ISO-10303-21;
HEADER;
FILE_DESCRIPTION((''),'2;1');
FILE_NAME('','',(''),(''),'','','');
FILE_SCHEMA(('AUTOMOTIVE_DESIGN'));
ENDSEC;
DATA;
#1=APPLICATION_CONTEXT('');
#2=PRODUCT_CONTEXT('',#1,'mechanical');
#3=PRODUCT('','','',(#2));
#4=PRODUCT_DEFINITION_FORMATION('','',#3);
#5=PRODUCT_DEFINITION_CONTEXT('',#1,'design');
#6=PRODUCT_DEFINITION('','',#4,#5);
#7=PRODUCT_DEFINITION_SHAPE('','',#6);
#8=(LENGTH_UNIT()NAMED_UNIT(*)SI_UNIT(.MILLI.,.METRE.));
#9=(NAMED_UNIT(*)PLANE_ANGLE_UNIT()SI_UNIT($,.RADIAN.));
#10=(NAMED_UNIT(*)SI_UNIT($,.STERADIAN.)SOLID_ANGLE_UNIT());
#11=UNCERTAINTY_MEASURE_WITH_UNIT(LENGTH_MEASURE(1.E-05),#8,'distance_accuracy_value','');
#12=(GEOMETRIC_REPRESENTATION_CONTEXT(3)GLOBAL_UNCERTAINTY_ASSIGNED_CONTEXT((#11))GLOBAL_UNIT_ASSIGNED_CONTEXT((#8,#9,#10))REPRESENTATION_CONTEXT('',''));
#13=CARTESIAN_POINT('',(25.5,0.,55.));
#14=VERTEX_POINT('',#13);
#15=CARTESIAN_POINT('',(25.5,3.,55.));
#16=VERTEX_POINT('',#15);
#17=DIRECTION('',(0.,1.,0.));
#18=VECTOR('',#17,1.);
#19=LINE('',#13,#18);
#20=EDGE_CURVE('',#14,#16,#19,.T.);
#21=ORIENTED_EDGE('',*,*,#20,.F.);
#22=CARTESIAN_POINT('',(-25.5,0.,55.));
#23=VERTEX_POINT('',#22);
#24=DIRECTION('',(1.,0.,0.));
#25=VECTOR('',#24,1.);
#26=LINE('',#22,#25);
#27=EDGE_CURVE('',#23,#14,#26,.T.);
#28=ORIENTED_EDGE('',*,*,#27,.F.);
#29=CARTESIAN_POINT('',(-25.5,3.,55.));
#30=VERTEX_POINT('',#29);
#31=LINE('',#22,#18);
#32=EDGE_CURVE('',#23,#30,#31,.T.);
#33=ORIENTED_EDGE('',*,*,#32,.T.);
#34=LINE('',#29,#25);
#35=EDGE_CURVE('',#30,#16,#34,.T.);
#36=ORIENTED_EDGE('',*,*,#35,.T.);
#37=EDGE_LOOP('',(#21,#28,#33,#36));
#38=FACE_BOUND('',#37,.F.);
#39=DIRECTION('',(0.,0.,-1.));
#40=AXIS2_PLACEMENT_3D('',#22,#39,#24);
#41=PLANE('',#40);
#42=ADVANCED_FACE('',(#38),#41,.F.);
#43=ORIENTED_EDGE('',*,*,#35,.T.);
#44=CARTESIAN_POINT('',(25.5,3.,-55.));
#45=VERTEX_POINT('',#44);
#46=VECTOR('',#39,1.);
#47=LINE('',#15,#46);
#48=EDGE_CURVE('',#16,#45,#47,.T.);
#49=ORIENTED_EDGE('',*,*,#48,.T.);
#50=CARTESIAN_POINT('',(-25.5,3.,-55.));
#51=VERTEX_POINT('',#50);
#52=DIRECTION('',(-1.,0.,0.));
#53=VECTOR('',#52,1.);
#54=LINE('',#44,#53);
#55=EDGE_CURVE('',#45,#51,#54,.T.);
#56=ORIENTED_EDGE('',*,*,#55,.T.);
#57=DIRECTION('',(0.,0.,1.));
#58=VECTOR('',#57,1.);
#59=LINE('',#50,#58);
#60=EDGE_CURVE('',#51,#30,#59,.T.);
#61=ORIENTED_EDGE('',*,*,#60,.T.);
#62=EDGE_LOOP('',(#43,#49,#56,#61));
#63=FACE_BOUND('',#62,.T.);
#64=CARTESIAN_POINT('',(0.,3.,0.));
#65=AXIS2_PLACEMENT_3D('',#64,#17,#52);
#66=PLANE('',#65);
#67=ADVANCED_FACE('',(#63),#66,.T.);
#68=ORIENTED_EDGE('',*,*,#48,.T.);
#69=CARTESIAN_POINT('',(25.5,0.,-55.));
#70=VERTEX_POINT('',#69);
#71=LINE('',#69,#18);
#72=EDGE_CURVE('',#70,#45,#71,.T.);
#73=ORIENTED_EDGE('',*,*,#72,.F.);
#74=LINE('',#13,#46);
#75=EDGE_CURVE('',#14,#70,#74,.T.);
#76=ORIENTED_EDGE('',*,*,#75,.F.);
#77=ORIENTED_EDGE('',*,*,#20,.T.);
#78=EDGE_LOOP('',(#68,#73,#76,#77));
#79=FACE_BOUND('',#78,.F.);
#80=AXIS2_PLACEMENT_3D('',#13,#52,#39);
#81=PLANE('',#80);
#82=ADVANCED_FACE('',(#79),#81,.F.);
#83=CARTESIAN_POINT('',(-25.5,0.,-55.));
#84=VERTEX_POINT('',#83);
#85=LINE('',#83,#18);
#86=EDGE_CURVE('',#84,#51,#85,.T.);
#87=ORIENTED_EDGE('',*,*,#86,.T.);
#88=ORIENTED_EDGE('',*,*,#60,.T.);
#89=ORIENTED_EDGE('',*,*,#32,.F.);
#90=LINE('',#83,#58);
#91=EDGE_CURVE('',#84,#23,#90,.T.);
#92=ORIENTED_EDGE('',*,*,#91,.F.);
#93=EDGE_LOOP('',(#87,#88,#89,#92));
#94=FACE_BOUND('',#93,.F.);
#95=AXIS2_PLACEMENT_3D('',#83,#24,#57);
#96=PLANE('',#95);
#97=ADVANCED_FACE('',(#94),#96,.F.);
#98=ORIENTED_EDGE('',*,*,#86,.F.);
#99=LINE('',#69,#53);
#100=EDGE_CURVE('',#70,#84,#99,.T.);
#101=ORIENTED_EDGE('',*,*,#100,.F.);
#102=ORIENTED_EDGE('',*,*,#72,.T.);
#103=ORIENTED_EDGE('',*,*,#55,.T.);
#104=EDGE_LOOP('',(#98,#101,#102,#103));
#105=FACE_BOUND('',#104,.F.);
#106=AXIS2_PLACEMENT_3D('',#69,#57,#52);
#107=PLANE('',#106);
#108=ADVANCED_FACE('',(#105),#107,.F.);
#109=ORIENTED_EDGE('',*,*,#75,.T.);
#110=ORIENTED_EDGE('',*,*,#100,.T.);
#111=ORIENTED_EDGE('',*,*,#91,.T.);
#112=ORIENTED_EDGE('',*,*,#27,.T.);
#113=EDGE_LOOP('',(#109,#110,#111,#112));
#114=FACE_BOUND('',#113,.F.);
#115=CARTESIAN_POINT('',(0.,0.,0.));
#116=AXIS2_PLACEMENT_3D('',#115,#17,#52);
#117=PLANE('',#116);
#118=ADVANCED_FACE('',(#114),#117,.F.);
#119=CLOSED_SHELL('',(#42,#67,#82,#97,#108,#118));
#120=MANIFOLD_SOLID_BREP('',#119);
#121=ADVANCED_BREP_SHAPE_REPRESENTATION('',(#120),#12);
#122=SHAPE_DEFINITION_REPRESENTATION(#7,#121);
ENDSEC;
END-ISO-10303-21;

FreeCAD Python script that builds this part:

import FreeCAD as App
import Part
import Sketcher
Q = App.Units.Quantity


def add_polygon(sketch, points):
    """Adds a closed chain of lines whose ends are joined by coincident constraints."""
    first, n = sketch.GeometryCount, len(points)
    for a, b in zip(points, points[1:] + points[:1]):
        sketch.addGeometry(Part.LineSegment(App.Vector(*a, 0), App.Vector(*b, 0)), False)
    for i in range(n):
        sketch.addConstraint(Sketcher.Constraint("Coincident", first + i, 2, first + (i + 1) % n, 1))

doc = App.newDocument("Part")
params = doc.addObject("Spreadsheet::Sheet", "Params")
for row, (alias, value) in enumerate([
    ("sketch1_width", "51 mm"),
    ("sketch1_height", "110 mm"),
    ("pad1_length", "3 mm"),
], start=1):
    params.set(f"A{row}", alias)
    params.set(f"B{row}", "=" + value)
    params.setAlias(f"B{row}", alias)

body = doc.addObject("PartDesign::Body", "Body")

# Sketch on XZ plane
sketch1 = doc.addObject("Sketcher::SketchObject", "Sketch")
body.addObject(sketch1)
sketch1.AttachmentSupport = (doc.XZ_Plane, [""])
sketch1.MapMode = "FlatFace"
add_polygon(sketch1, [(-25.5, -55), (-25.5, 55), (25.5, 55), (25.5, -55)])  # lines 0-3
sketch1.addConstraint([
    Sketcher.Constraint("Vertical", 0),
    Sketcher.Constraint("Horizontal", 1),
    Sketcher.Constraint("Vertical", 2),
    Sketcher.Constraint("Horizontal", 3),
    Sketcher.Constraint("Symmetric", 0, 2, 2, 2, -1, 1),
    Sketcher.Constraint("DistanceX", 1, 1, 1, 2, Q("51 mm")),
    Sketcher.Constraint("DistanceY", 0, 1, 0, 2, Q("110 mm")),
])
sketch1.setExpression("Constraints[9]", "Params.sketch1_width")
sketch1.setExpression("Constraints[10]", "Params.sketch1_height")
pad1 = doc.addObject("PartDesign::Pad", "Pad")
body.addObject(pad1)
pad1.Profile = sketch1
pad1.setExpression("Length", "Params.pad1_length")
pad1.Reversed = True

doc.recompute()
